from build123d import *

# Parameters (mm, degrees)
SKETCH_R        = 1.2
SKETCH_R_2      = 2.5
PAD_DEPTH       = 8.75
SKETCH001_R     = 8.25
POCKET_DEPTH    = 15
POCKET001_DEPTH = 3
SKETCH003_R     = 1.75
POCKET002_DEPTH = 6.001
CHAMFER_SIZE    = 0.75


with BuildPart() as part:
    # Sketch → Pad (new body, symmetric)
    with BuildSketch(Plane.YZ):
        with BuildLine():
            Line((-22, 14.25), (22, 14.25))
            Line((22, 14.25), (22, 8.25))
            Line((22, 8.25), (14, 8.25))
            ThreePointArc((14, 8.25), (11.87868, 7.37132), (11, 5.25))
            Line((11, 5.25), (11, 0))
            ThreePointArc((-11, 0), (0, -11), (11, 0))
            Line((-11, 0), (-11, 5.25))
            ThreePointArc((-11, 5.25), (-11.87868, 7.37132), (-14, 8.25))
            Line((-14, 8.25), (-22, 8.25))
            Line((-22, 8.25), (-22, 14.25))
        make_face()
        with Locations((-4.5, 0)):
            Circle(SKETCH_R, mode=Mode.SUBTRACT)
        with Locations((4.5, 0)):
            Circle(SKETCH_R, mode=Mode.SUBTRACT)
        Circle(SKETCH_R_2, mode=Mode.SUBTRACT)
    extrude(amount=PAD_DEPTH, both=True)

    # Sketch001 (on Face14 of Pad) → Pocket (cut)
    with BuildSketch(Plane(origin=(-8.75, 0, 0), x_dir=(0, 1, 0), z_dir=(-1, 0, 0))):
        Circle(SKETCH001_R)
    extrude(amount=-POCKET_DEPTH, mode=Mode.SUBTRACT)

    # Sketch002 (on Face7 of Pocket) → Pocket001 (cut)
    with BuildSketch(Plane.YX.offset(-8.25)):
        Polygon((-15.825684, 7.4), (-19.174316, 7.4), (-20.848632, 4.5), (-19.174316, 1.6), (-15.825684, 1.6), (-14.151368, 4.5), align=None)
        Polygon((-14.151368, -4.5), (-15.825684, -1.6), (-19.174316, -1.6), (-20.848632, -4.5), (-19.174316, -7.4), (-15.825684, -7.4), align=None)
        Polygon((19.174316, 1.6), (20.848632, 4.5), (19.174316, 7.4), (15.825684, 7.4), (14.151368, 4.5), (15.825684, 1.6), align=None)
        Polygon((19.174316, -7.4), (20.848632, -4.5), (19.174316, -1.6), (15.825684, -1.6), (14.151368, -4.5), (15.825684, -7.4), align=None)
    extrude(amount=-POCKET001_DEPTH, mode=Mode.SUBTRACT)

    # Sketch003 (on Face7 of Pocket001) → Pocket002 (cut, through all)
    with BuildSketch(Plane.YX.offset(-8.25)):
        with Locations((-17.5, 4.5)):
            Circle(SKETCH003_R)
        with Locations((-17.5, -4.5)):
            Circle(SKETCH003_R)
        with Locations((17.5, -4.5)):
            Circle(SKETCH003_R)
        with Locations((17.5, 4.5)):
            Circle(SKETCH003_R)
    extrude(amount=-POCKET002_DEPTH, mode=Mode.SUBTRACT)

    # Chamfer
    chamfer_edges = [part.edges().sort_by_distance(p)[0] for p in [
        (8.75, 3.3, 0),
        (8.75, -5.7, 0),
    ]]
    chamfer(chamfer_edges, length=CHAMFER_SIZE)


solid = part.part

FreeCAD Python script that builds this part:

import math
import FreeCAD as App
import Part
import Sketcher
from FreeCAD import Vector
Q = App.Units.Quantity


def edges_at(feature, points):
    """Names of the edges that pass closest to the given points."""
    edges = feature.Shape.Edges
    near = lambda p: min(range(len(edges)), key=lambda i: edges[i].distToShape(Part.Vertex(*p))[0])
    return sorted({f"Edge{near(p) + 1}" for p in points})

doc = App.newDocument("Part")
body = doc.addObject("PartDesign::Body", "Body")

# Sketch on YZ plane
sketch1 = body.newObject("Sketcher::SketchObject", "Sketch")
sketch1.AttachmentSupport = (doc.getObject("YZ_Plane"), [""])
sketch1.MapMode = "FlatFace"
sketch1.addGeometry(Part.LineSegment(Vector(22, 14.2, 0), Vector(-22, 14.2, 0)), False)
sketch1.addGeometry(Part.LineSegment(Vector(-22, 14.2, 0), Vector(-22, 8.2, 0)), False)
sketch1.addGeometry(Part.LineSegment(Vector(-22, 8.2, 0), Vector(-14, 8.2, 0)), False)
sketch1.addGeometry(Part.ArcOfCircle(Part.Circle(Vector(-14, 5.2, 0), Vector(0, 0, 1), 3), math.radians(0), math.radians(90)), False)
sketch1.addGeometry(Part.LineSegment(Vector(-11, 5.2, 0), Vector(-11, 0, 0)), False)
sketch1.addGeometry(Part.ArcOfCircle(Part.Circle(Vector(0, 0, 0), Vector(0, 0, 1), 11), math.radians(180), math.radians(360)), False)
sketch1.addGeometry(Part.LineSegment(Vector(11, 0, 0), Vector(11, 5.2, 0)), False)
sketch1.addGeometry(Part.ArcOfCircle(Part.Circle(Vector(14, 5.2, 0), Vector(0, 0, 1), 3), math.radians(90), math.radians(180)), False)
sketch1.addGeometry(Part.LineSegment(Vector(14, 8.2, 0), Vector(22, 8.2, 0)), False)
sketch1.addGeometry(Part.LineSegment(Vector(22, 8.2, 0), Vector(22, 14.2, 0)), False)
sketch1.addGeometry(Part.Circle(Vector(0, 0, 0), Vector(0, 0, 1), 2.5), False)
sketch1.addGeometry(Part.Circle(Vector(4.5, 0, 0), Vector(0, 0, 1), 1.2), False)
sketch1.addGeometry(Part.Circle(Vector(-4.5, 0, 0), Vector(0, 0, 1), 1.2), False)
sketch1.addConstraint(Sketcher.Constraint("Coincident", 0, 2, 1, 1))
sketch1.addConstraint(Sketcher.Constraint("Coincident", 1, 2, 2, 1))
sketch1.addConstraint(Sketcher.Constraint("Tangent", 2, 2, 3, 2))
sketch1.addConstraint(Sketcher.Constraint("Tangent", 3, 1, 4, 1))
sketch1.addConstraint(Sketcher.Constraint("Tangent", 4, 2, 5, 1))
sketch1.addConstraint(Sketcher.Constraint("Tangent", 5, 2, 6, 1))
sketch1.addConstraint(Sketcher.Constraint("Tangent", 6, 2, 7, 2))
sketch1.addConstraint(Sketcher.Constraint("Tangent", 7, 1, 8, 1))
sketch1.addConstraint(Sketcher.Constraint("Coincident", 8, 2, 9, 1))
sketch1.addConstraint(Sketcher.Constraint("Coincident", 9, 2, 0, 1))
sketch1.addConstraint(Sketcher.Constraint("Horizontal", 0))
sketch1.addConstraint(Sketcher.Constraint("Vertical", 1))
sketch1.addConstraint(Sketcher.Constraint("Horizontal", 2))
sketch1.addConstraint(Sketcher.Constraint("Vertical", 4))
sketch1.addConstraint(Sketcher.Constraint("Vertical", 6))
sketch1.addConstraint(Sketcher.Constraint("Horizontal", 8))
sketch1.addConstraint(Sketcher.Constraint("Vertical", 9))
sketch1.addConstraint(Sketcher.Constraint("Coincident", 5, 3, -1, 1))
sketch1.addConstraint(Sketcher.Constraint("Coincident", 10, 3, -1, 1))
sketch1.addConstraint(Sketcher.Constraint("Equal", 3, 7))
sketch1.addConstraint(Sketcher.Constraint("Equal", 11, 12))
sketch1.addConstraint(Sketcher.Constraint("Symmetric", 11, 3, 12, 3, -1, 1))
sketch1.addConstraint(Sketcher.Constraint("Symmetric", 1, 2, 8, 2, -2))
sketch1.addConstraint(Sketcher.Constraint("PointOnObject", 11, 3, -1))
sketch1.addConstraint(Sketcher.Constraint("Diameter", 10, Q("5 mm")))
sketch1.addConstraint(Sketcher.Constraint("Radius", 3, Q("3.000001 mm")))
sketch1.addConstraint(Sketcher.Constraint("Radius", 5, Q("11 mm")))
sketch1.addConstraint(Sketcher.Constraint("Diameter", 11, Q("2.4 mm")))
sketch1.addConstraint(Sketcher.Constraint("DistanceX", 0, 2, 0, 1, Q("44 mm")))
sketch1.addConstraint(Sketcher.Constraint("DistanceY", 1, 2, 1, 1, Q("6 mm")))
sketch1.addConstraint(Sketcher.Constraint("DistanceX", 12, 3, 11, 3, Q("9 mm")))
sketch1.addConstraint(Sketcher.Constraint("DistanceY", 4, 2, 4, 1, Q("5.25 mm")))
pad1 = body.newObject("PartDesign::Pad", "Pad")
pad1.Profile = sketch1
pad1.Length = 17.5
pad1.Midplane = True

# Sketch on YZ plane
sketch2 = body.newObject("Sketcher::SketchObject", "Sketch001")
sketch2.AttachmentSupport = (doc.getObject("YZ_Plane"), [""])
sketch2.MapMode = "FlatFace"
sketch2.AttachmentOffset = App.Placement(Vector(0, 0, -8.75), App.Rotation())
sketch2.addGeometry(Part.Circle(Vector(0, 0, 0), Vector(0, 0, 1), 8), False)
sketch2.addConstraint(Sketcher.Constraint("Coincident", 0, 3, -1, 1))
sketch2.addConstraint(Sketcher.Constraint("Diameter", 0, Q("16.5 mm")))
pocket1 = body.newObject("PartDesign::Pocket", "Pocket")
pocket1.Profile = sketch2
pocket1.Length = 15
pocket1.Reversed = True

# Sketch on XY plane
sketch3 = body.newObject("Sketcher::SketchObject", "Sketch002")
sketch3.AttachmentSupport = (doc.getObject("XY_Plane"), [""])
sketch3.MapMode = "FlatFace"
sketch3.AttachmentOffset = App.Placement(Vector(0, 0, 8.25), App.Rotation())
sketch3.addGeometry(Part.LineSegment(Vector(7.4, -15.8, 0), Vector(7.4, -19.2, 0)), False)
sketch3.addGeometry(Part.LineSegment(Vector(7.4, -19.2, 0), Vector(4.5, -20.8, 0)), False)
sketch3.addGeometry(Part.LineSegment(Vector(4.5, -20.8, 0), Vector(1.6, -19.2, 0)), False)
sketch3.addGeometry(Part.LineSegment(Vector(1.6, -19.2, 0), Vector(1.6, -15.8, 0)), False)
sketch3.addGeometry(Part.LineSegment(Vector(1.6, -15.8, 0), Vector(4.5, -14.2, 0)), False)
sketch3.addGeometry(Part.LineSegment(Vector(4.5, -14.2, 0), Vector(7.4, -15.8, 0)), False)
sketch3.addGeometry(Part.LineSegment(Vector(-4.5, -14.2, 0), Vector(-1.6, -15.8, 0)), False)
sketch3.addGeometry(Part.LineSegment(Vector(-1.6, -15.8, 0), Vector(-1.6, -19.2, 0)), False)
sketch3.addGeometry(Part.LineSegment(Vector(-1.6, -19.2, 0), Vector(-4.5, -20.8, 0)), False)
sketch3.addGeometry(Part.LineSegment(Vector(-4.5, -20.8, 0), Vector(-7.4, -19.2, 0)), False)
sketch3.addGeometry(Part.LineSegment(Vector(-7.4, -19.2, 0), Vector(-7.4, -15.8, 0)), False)
sketch3.addGeometry(Part.LineSegment(Vector(-7.4, -15.8, 0), Vector(-4.5, -14.2, 0)), False)
sketch3.addGeometry(Part.LineSegment(Vector(1.6, 19.2, 0), Vector(4.5, 20.8, 0)), False)
sketch3.addGeometry(Part.LineSegment(Vector(4.5, 20.8, 0), Vector(7.4, 19.2, 0)), False)
sketch3.addGeometry(Part.LineSegment(Vector(7.4, 19.2, 0), Vector(7.4, 15.8, 0)), False)
sketch3.addGeometry(Part.LineSegment(Vector(7.4, 15.8, 0), Vector(4.5, 14.2, 0)), False)
sketch3.addGeometry(Part.LineSegment(Vector(4.5, 14.2, 0), Vector(1.6, 15.8, 0)), False)
sketch3.addGeometry(Part.LineSegment(Vector(1.6, 15.8, 0), Vector(1.6, 19.2, 0)), False)
sketch3.addGeometry(Part.LineSegment(Vector(-7.4, 19.2, 0), Vector(-4.5, 20.8, 0)), False)
sketch3.addGeometry(Part.LineSegment(Vector(-4.5, 20.8, 0), Vector(-1.6, 19.2, 0)), False)
sketch3.addGeometry(Part.LineSegment(Vector(-1.6, 19.2, 0), Vector(-1.6, 15.8, 0)), False)
sketch3.addGeometry(Part.LineSegment(Vector(-1.6, 15.8, 0), Vector(-4.5, 14.2, 0)), False)
sketch3.addGeometry(Part.LineSegment(Vector(-4.5, 14.2, 0), Vector(-7.4, 15.8, 0)), False)
sketch3.addGeometry(Part.LineSegment(Vector(-7.4, 15.8, 0), Vector(-7.4, 19.2, 0)), False)
sketch3.addConstraint(Sketcher.Constraint("Coincident", 0, 2, 1, 1))
sketch3.addConstraint(Sketcher.Constraint("Coincident", 1, 2, 2, 1))
sketch3.addConstraint(Sketcher.Constraint("Coincident", 2, 2, 3, 1))
sketch3.addConstraint(Sketcher.Constraint("Coincident", 3, 2, 4, 1))
sketch3.addConstraint(Sketcher.Constraint("Coincident", 4, 2, 5, 1))
sketch3.addConstraint(Sketcher.Constraint("Coincident", 5, 2, 0, 1))
sketch3.addConstraint(Sketcher.Constraint("Coincident", 6, 2, 7, 1))
sketch3.addConstraint(Sketcher.Constraint("Coincident", 7, 2, 8, 1))
sketch3.addConstraint(Sketcher.Constraint("Coincident", 8, 2, 9, 1))
sketch3.addConstraint(Sketcher.Constraint("Coincident", 9, 2, 10, 1))
sketch3.addConstraint(Sketcher.Constraint("Coincident", 10, 2, 11, 1))
sketch3.addConstraint(Sketcher.Constraint("Coincident", 11, 2, 6, 1))
sketch3.addConstraint(Sketcher.Constraint("Coincident", 12, 2, 13, 1))
sketch3.addConstraint(Sketcher.Constraint("Coincident", 13, 2, 14, 1))
sketch3.addConstraint(Sketcher.Constraint("Coincident", 14, 2, 15, 1))
sketch3.addConstraint(Sketcher.Constraint("Coincident", 15, 2, 16, 1))
sketch3.addConstraint(Sketcher.Constraint("Coincident", 16, 2, 17, 1))
sketch3.addConstraint(Sketcher.Constraint("Coincident", 17, 2, 12, 1))
sketch3.addConstraint(Sketcher.Constraint("Coincident", 18, 2, 19, 1))
sketch3.addConstraint(Sketcher.Constraint("Coincident", 19, 2, 20, 1))
sketch3.addConstraint(Sketcher.Constraint("Coincident", 20, 2, 21, 1))
sketch3.addConstraint(Sketcher.Constraint("Coincident", 21, 2, 22, 1))
sketch3.addConstraint(Sketcher.Constraint("Coincident", 22, 2, 23, 1))
sketch3.addConstraint(Sketcher.Constraint("Coincident", 23, 2, 18, 1))
sketch3.addConstraint(Sketcher.Constraint("Vertical", 0))
sketch3.addConstraint(Sketcher.Constraint("Vertical", 3))
sketch3.addConstraint(Sketcher.Constraint("Vertical", 7))
sketch3.addConstraint(Sketcher.Constraint("Vertical", 10))
sketch3.addConstraint(Sketcher.Constraint("Vertical", 14))
sketch3.addConstraint(Sketcher.Constraint("Vertical", 17))
sketch3.addConstraint(Sketcher.Constraint("Vertical", 20))
sketch3.addConstraint(Sketcher.Constraint("Vertical", 23))
sketch3.addConstraint(Sketcher.Constraint("Symmetric", 8, 2, 12, 2, -1, 1))
sketch3.addConstraint(Sketcher.Constraint("Symmetric", 9, 2, 13, 2, -1, 1))
sketch3.addConstraint(Sketcher.Constraint("Symmetric", 11, 2, 15, 2, -1, 1))
sketch3.addConstraint(Sketcher.Constraint("Symmetric", 6, 2, 16, 2, -1, 1))
sketch3.addConstraint(Sketcher.Constraint("Symmetric", 1, 2, 18, 2, -1, 1))
sketch3.addConstraint(Sketcher.Constraint("Symmetric", 2, 2, 19, 2, -1, 1))
sketch3.addConstraint(Sketcher.Constraint("Symmetric", 4, 2, 21, 2, -1, 1))
sketch3.addConstraint(Sketcher.Constraint("Symmetric", 5, 2, 22, 2, -1, 1))
sketch3.addConstraint(Sketcher.Constraint("Symmetric", 3, 2, 6, 2, -2))
sketch3.addConstraint(Sketcher.Constraint("Symmetric", 1, 2, 8, 2, -2))
sketch3.addConstraint(Sketcher.Constraint("Symmetric", 0, 2, 9, 2, -2))
sketch3.addConstraint(Sketcher.Constraint("Symmetric", 4, 2, 11, 2, -2))
sketch3.addConstraint(Sketcher.Constraint("Parallel", 1, 4))
sketch3.addConstraint(Sketcher.Constraint("Parallel", 2, 5))
sketch3.addConstraint(Sketcher.Constraint("Parallel", 5, 6))
sketch3.addConstraint(Sketcher.Constraint("Parallel", 4, 8))
sketch3.addConstraint(Sketcher.Constraint("Parallel", 8, 11))
sketch3.addConstraint(Sketcher.Constraint("Parallel", 11, 12))
sketch3.addConstraint(Sketcher.Constraint("Parallel", 12, 15))
sketch3.addConstraint(Sketcher.Constraint("Parallel", 15, 18))
sketch3.addConstraint(Sketcher.Constraint("Parallel", 18, 21))
sketch3.addConstraint(Sketcher.Constraint("Horizontal", 0, 2, 2, 2))
sketch3.addConstraint(Sketcher.Constraint("Horizontal", 3, 2, 5, 2))
sketch3.addConstraint(Sketcher.Constraint("Angle", 1, Q("-149.999997 deg")))
sketch3.addConstraint(Sketcher.Constraint("DistanceX", 6, 2, 5, 2, Q("9 mm")))
sketch3.addConstraint(Sketcher.Constraint("DistanceY", 4, 2, 12, 2, Q("35 mm")))
sketch3.addConstraint(Sketcher.Constraint("DistanceX", -1, 1, 0, 2, Q("7.4 mm")))
sketch3.addConstraint(Sketcher.Constraint("DistanceY", 0, 2, 0, 1, Q("3.348632 mm")))
pocket2 = body.newObject("PartDesign::Pocket", "Pocket001")
pocket2.Profile = sketch3
pocket2.Length = 3
pocket2.Reversed = True

# Sketch on XY plane
sketch4 = body.newObject("Sketcher::SketchObject", "Sketch003")
sketch4.AttachmentSupport = (doc.getObject("XY_Plane"), [""])
sketch4.MapMode = "FlatFace"
sketch4.AttachmentOffset = App.Placement(Vector(0, 0, 8.25), App.Rotation())
sketch4.addGeometry(Part.Circle(Vector(4.5, -17.5, 0), Vector(0, 0, 1), 1.8), False)
sketch4.addGeometry(Part.Circle(Vector(-4.5, -17.5, 0), Vector(0, 0, 1), 1.8), False)
sketch4.addGeometry(Part.Circle(Vector(-4.5, 17.5, 0), Vector(0, 0, 1), 1.8), False)
sketch4.addGeometry(Part.Circle(Vector(4.5, 17.5, 0), Vector(0, 0, 1), 1.8), False)
sketch4.addConstraint(Sketcher.Constraint("Equal", 0, 1))
sketch4.addConstraint(Sketcher.Constraint("Equal", 1, 2))
sketch4.addConstraint(Sketcher.Constraint("Equal", 2, 3))
sketch4.addConstraint(Sketcher.Constraint("Symmetric", 0, 3, 2, 3, -1, 1))
sketch4.addConstraint(Sketcher.Constraint("Symmetric", 1, 3, 3, 3, -1, 1))
sketch4.addConstraint(Sketcher.Constraint("Symmetric", 0, 3, 1, 3, -2))
sketch4.addConstraint(Sketcher.Constraint("Diameter", 0, Q("3.5 mm")))
sketch4.addConstraint(Sketcher.Constraint("DistanceX", 1, 3, 0, 3, Q("9 mm")))
sketch4.addConstraint(Sketcher.Constraint("DistanceY", 1, 3, 2, 3, Q("35 mm")))
pocket3 = body.newObject("PartDesign::Pocket", "Pocket002")
pocket3.Profile = sketch4
pocket3.Type = "ThroughAll"
pocket3.Reversed = True
doc.recompute()

chamfer = body.newObject("PartDesign::Chamfer", "Chamfer")
chamfer.Base = (pocket3, edges_at(pocket3, [(8.75, 3.3, 0), (8.75, -5.7, 0)]))
chamfer.Size = 0.75

doc.recompute()
